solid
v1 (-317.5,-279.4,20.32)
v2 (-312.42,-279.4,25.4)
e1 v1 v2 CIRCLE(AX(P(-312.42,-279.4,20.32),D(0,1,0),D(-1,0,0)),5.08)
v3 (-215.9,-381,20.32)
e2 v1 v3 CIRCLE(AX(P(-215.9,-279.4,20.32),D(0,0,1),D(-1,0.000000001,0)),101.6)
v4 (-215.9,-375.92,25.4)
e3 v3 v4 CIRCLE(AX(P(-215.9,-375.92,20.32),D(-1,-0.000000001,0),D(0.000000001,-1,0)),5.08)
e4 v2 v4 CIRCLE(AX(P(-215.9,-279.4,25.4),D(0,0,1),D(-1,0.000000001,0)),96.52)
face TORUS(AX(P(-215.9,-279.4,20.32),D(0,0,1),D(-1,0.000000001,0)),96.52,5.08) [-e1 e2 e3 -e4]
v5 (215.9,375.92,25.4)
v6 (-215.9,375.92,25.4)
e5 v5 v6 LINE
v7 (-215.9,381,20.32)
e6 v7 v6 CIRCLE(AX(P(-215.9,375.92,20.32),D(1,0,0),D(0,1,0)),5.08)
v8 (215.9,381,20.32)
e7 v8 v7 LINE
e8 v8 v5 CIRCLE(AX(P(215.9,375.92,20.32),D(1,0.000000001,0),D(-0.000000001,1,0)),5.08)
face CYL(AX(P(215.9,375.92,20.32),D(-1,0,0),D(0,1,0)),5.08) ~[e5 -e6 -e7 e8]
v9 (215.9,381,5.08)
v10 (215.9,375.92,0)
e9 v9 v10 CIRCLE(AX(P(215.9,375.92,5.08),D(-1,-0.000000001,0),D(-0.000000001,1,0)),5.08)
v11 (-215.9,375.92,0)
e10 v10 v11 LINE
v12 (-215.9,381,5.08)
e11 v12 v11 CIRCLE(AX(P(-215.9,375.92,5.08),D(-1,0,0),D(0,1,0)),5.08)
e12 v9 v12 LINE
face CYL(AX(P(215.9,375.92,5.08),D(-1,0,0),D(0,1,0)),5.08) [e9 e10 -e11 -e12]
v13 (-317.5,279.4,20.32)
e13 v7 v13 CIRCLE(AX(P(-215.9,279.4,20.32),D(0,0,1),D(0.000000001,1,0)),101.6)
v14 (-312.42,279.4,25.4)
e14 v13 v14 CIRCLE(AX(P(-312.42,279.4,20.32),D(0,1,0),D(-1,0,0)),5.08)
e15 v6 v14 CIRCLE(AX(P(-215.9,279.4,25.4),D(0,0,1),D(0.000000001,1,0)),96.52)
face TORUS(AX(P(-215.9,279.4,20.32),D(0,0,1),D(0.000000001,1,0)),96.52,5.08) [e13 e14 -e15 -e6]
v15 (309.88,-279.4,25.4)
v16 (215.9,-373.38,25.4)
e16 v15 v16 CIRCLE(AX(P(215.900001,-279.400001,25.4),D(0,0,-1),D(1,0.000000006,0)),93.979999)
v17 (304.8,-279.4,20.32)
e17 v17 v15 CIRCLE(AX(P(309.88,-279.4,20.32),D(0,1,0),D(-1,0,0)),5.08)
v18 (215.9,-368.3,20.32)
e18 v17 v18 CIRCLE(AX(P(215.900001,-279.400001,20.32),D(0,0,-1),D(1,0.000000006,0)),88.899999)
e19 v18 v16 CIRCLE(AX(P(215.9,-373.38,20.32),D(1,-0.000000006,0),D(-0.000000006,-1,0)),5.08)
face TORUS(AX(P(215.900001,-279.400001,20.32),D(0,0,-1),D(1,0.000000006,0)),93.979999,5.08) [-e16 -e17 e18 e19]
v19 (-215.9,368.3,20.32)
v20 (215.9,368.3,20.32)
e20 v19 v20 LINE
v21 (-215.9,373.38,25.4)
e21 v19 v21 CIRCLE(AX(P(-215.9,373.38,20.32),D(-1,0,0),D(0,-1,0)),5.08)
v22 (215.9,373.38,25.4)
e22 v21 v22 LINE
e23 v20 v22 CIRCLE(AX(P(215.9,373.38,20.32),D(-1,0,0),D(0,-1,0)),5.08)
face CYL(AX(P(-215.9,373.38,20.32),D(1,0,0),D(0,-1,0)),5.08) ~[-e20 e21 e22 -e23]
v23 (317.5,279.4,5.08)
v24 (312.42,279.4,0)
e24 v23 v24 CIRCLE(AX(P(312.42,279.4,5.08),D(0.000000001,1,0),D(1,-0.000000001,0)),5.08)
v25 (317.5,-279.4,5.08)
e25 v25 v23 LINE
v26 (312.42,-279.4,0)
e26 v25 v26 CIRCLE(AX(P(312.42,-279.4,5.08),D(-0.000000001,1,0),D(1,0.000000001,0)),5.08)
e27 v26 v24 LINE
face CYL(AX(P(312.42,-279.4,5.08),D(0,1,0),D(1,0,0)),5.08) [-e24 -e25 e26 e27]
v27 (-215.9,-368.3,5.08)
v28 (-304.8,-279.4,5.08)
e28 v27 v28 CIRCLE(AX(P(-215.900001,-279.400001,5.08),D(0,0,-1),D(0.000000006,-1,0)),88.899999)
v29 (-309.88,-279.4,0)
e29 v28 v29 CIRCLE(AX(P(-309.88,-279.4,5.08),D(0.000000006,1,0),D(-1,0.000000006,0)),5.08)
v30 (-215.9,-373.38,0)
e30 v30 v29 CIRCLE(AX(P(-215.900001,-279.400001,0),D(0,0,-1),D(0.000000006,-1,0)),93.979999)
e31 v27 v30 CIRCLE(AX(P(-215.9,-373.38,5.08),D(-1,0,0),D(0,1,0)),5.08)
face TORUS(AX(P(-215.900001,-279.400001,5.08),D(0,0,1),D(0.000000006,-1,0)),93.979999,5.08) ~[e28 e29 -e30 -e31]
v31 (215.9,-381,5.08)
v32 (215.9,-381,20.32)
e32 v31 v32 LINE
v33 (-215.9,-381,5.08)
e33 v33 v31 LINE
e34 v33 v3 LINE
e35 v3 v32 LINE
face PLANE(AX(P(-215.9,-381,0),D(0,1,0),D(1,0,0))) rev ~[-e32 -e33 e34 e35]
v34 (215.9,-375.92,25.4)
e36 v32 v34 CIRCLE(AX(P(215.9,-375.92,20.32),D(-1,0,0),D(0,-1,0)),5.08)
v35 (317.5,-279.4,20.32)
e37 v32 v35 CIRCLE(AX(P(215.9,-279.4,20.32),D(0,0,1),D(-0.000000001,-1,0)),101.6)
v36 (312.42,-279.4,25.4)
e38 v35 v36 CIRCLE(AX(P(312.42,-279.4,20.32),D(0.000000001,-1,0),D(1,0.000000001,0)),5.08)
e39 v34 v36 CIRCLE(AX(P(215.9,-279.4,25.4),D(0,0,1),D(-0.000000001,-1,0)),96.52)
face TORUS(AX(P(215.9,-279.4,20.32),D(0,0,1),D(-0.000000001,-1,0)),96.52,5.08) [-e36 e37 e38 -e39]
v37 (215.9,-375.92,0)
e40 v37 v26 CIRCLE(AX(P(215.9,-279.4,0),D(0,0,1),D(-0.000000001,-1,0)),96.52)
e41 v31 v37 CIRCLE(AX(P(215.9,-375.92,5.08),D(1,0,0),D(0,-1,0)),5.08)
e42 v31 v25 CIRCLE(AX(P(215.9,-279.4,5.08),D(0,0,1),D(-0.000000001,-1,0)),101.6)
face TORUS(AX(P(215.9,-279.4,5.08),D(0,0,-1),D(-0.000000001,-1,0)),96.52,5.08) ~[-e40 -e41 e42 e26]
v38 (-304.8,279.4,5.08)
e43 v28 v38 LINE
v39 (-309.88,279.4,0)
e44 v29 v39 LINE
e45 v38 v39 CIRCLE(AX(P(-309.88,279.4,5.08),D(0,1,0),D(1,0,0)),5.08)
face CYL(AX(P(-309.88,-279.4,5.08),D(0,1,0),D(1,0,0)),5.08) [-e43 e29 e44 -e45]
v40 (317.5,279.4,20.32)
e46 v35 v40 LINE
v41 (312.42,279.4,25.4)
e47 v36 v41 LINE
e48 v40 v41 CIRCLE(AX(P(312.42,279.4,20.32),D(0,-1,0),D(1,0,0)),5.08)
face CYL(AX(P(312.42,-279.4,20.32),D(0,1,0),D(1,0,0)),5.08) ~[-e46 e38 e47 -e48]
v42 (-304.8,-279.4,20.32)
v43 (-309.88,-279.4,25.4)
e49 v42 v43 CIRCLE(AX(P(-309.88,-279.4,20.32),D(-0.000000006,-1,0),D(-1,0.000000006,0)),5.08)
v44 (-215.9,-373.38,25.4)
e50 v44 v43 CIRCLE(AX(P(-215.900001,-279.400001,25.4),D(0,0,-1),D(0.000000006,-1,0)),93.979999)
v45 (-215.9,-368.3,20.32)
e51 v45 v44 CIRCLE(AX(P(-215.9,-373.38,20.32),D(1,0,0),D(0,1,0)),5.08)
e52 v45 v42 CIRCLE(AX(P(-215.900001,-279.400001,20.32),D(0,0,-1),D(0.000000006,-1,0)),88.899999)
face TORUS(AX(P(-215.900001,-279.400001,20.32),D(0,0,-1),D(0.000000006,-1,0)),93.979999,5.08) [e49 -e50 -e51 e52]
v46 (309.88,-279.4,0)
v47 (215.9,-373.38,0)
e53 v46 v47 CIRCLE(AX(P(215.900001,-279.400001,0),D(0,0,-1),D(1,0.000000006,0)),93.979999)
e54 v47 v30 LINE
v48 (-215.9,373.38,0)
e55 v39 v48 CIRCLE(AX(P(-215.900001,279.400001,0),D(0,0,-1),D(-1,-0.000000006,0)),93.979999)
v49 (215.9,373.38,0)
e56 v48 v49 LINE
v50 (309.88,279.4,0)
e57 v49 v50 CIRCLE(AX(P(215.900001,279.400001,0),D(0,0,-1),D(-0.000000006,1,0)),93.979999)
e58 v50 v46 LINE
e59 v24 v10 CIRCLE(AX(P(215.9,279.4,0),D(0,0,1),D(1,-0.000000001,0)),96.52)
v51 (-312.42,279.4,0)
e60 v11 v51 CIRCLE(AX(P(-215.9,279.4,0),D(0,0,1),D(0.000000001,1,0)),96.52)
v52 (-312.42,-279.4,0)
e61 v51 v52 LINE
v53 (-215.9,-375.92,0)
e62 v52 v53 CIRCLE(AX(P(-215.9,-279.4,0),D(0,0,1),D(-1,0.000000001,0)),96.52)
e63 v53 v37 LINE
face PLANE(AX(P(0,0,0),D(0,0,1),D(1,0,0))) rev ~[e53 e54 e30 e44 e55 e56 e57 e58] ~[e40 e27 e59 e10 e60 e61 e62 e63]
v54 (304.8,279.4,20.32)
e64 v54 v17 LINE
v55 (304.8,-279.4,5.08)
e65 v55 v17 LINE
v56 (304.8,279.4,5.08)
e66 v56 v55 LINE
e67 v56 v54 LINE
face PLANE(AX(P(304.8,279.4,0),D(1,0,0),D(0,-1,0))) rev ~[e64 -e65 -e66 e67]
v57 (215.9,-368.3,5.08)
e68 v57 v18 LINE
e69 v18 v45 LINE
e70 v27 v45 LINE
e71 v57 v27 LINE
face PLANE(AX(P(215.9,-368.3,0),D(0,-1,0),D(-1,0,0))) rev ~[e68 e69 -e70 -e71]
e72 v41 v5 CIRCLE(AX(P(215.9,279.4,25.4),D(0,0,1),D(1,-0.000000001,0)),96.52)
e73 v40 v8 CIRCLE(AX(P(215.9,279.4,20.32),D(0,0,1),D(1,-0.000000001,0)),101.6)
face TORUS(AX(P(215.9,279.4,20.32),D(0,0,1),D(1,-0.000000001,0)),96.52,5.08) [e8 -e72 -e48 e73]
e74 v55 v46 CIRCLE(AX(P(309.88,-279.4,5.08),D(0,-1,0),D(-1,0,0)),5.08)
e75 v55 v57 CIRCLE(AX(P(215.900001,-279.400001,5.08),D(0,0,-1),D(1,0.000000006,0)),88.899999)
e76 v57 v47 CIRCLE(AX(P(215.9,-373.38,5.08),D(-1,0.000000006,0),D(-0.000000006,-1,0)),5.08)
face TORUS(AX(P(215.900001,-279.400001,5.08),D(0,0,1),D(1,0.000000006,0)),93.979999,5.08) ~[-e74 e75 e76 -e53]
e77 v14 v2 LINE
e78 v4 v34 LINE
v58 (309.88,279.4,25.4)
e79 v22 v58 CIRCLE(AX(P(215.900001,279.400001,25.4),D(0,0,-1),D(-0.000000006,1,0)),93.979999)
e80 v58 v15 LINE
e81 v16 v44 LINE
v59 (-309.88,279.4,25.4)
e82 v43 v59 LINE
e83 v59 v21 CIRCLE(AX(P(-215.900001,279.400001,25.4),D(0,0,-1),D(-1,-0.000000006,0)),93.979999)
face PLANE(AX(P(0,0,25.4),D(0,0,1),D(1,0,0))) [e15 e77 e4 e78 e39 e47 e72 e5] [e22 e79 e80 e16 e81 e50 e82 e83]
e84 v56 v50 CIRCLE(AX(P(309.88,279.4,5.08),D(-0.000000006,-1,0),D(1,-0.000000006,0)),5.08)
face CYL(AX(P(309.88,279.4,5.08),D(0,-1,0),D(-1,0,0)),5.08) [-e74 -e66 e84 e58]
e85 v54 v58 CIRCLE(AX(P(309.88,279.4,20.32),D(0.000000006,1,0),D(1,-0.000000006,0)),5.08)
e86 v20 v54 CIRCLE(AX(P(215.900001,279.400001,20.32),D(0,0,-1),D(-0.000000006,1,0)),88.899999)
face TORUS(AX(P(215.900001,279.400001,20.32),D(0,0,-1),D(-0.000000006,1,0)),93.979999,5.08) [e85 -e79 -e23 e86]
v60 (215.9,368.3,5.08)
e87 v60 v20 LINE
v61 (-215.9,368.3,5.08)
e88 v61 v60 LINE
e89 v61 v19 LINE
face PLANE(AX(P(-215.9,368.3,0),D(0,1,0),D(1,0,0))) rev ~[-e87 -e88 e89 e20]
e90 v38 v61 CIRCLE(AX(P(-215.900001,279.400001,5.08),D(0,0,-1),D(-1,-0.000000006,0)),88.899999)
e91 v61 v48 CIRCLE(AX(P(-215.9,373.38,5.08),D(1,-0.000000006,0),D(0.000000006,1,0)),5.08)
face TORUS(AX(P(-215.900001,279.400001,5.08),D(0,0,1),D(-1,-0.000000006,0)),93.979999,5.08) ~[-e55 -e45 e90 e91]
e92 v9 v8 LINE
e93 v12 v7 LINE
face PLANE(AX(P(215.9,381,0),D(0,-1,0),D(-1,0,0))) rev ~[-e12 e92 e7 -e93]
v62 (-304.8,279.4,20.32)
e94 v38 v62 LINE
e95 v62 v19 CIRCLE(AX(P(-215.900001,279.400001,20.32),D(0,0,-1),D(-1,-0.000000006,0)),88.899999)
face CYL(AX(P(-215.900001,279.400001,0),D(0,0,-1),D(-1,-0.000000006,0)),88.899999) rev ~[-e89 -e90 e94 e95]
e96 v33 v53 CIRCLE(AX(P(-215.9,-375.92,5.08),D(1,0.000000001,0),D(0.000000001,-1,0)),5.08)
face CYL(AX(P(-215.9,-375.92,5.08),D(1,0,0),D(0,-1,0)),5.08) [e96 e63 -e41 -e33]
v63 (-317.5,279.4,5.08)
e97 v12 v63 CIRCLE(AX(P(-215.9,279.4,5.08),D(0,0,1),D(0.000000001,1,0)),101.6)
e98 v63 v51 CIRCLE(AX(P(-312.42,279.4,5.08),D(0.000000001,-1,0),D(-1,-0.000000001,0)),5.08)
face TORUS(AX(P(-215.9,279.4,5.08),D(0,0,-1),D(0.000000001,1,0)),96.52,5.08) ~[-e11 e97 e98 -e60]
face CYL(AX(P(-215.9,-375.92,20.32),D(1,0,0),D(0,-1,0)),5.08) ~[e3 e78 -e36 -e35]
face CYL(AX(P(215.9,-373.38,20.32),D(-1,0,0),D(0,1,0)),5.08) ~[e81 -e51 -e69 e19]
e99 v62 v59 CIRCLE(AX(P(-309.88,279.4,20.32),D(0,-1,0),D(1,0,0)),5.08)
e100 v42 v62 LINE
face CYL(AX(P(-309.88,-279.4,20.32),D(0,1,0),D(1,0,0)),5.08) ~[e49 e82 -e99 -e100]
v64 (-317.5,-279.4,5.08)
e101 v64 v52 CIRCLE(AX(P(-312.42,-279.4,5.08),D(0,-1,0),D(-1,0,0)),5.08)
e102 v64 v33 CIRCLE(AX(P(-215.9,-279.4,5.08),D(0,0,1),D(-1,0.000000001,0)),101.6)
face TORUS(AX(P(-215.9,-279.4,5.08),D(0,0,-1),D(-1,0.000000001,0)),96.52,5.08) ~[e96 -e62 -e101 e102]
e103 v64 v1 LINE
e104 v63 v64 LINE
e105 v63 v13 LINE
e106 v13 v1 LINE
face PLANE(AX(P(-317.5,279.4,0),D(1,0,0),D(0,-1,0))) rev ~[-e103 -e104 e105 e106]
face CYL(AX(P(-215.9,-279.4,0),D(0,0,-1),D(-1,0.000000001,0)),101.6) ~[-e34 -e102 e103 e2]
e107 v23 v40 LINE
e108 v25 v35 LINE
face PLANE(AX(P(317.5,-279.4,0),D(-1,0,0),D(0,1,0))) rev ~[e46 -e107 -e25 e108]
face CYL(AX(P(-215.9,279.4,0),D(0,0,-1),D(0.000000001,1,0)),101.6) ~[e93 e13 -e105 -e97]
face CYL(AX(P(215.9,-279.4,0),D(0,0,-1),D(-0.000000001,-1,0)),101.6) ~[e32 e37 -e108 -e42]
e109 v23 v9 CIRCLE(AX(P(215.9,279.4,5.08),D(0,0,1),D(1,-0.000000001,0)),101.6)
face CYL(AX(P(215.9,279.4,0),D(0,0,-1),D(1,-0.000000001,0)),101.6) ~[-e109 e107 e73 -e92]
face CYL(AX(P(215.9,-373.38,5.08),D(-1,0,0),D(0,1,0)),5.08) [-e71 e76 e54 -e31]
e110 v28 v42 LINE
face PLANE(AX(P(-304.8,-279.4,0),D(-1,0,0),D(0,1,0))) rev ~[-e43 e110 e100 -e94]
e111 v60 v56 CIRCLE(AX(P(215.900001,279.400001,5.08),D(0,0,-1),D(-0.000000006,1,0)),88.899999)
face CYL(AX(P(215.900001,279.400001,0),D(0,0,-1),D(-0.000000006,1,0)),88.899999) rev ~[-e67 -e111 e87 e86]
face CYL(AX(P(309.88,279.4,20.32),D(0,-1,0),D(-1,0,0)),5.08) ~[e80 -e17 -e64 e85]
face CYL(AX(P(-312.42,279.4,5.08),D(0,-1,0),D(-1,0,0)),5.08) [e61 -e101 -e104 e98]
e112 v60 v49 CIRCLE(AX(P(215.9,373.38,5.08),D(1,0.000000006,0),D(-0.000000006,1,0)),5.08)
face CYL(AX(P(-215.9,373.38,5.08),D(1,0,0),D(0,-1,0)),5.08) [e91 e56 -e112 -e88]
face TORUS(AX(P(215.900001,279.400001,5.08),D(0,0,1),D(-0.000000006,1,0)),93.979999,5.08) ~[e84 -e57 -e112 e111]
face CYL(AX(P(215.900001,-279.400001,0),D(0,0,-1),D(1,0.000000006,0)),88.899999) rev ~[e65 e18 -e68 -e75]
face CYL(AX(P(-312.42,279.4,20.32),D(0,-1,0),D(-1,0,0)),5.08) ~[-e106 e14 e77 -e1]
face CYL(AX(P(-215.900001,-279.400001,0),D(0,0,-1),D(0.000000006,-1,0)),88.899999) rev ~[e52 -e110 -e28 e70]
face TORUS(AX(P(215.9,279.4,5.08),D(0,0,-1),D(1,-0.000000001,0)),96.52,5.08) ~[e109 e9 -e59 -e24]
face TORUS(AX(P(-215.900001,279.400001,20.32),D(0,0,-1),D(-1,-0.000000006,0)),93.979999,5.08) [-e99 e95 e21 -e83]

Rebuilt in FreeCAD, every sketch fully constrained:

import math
import FreeCAD as App
import Part
import Sketcher
Q = App.Units.Quantity


def edges_at(feature, points):
    """Names of the edges that pass closest to the given points."""
    edges = feature.Shape.Edges
    near = lambda p: min(range(len(edges)), key=lambda i: edges[i].distToShape(Part.Vertex(*p))[0])
    return sorted({f"Edge{near(p) + 1}" for p in points})

doc = App.newDocument("Part")
body = doc.addObject("PartDesign::Body", "Body")

# Sketch on XY plane
sketch1 = body.newObject("Sketcher::SketchObject", "Sketch")
sketch1.AttachmentSupport = (doc.getObject("XY_Plane"), [""])
sketch1.MapMode = "FlatFace"
sketch1.addGeometry([
    Part.ArcOfCircle(Part.Circle(App.Vector(-216, -279, 0), App.Vector(0, 0, 1), 102), math.radians(180), math.radians(270)),  # 0
    Part.LineSegment(App.Vector(-216, -381, 0), App.Vector(216, -381, 0)),  # 1
    Part.ArcOfCircle(Part.Circle(App.Vector(216, -279, 0), App.Vector(0, 0, 1), 102), math.radians(-90), math.radians(0)),  # 2
    Part.LineSegment(App.Vector(318, -279, 0), App.Vector(318, 279, 0)),  # 3
    Part.ArcOfCircle(Part.Circle(App.Vector(216, 279, 0), App.Vector(0, 0, 1), 102), math.radians(0), math.radians(90)),  # 4
    Part.LineSegment(App.Vector(216, 381, 0), App.Vector(-216, 381, 0)),  # 5
    Part.ArcOfCircle(Part.Circle(App.Vector(-216, 279, 0), App.Vector(0, 0, 1), 102), math.radians(90), math.radians(180)),  # 6
    Part.LineSegment(App.Vector(-318, 279, 0), App.Vector(-318, -279, 0)),  # 7
    Part.LineSegment(App.Vector(305, 279, 0), App.Vector(305, -279, 0)),  # 8
    Part.ArcOfCircle(Part.Circle(App.Vector(216, -279, 0), App.Vector(0, 0, 1), 89), math.radians(-90), math.radians(0)),  # 9
    Part.LineSegment(App.Vector(216, -368, 0), App.Vector(-216, -368, 0)),  # 10
    Part.ArcOfCircle(Part.Circle(App.Vector(-216, -279, 0), App.Vector(0, 0, 1), 89), math.radians(180), math.radians(270)),  # 11
    Part.LineSegment(App.Vector(-305, -279, 0), App.Vector(-305, 279, 0)),  # 12
    Part.ArcOfCircle(Part.Circle(App.Vector(-216, 279, 0), App.Vector(0, 0, 1), 89), math.radians(90), math.radians(180)),  # 13
    Part.LineSegment(App.Vector(-216, 368, 0), App.Vector(216, 368, 0)),  # 14
    Part.ArcOfCircle(Part.Circle(App.Vector(216, 279, 0), App.Vector(0, 0, 1), 89), math.radians(0), math.radians(90)),  # 15
], False)
sketch1.addConstraint([
    Sketcher.Constraint("Tangent", 0, 2, 1, 1),
    Sketcher.Constraint("Tangent", 1, 2, 2, 1),
    Sketcher.Constraint("Tangent", 2, 2, 3, 1),
    Sketcher.Constraint("Tangent", 3, 2, 4, 1),
    Sketcher.Constraint("Tangent", 4, 2, 5, 1),
    Sketcher.Constraint("Tangent", 5, 2, 6, 1),
    Sketcher.Constraint("Tangent", 6, 2, 7, 1),
    Sketcher.Constraint("Tangent", 7, 2, 0, 1),
    Sketcher.Constraint("Tangent", 8, 2, 9, 2),
    Sketcher.Constraint("Tangent", 9, 1, 10, 1),
    Sketcher.Constraint("Tangent", 10, 2, 11, 2),
    Sketcher.Constraint("Tangent", 11, 1, 12, 1),
    Sketcher.Constraint("Tangent", 12, 2, 13, 2),
    Sketcher.Constraint("Tangent", 13, 1, 14, 1),
    Sketcher.Constraint("Tangent", 14, 2, 15, 2),
    Sketcher.Constraint("Tangent", 15, 1, 8, 1),
    Sketcher.Constraint("Horizontal", 1),
    Sketcher.Constraint("Vertical", 3),
    Sketcher.Constraint("Horizontal", 5),
    Sketcher.Constraint("Vertical", 7),
    Sketcher.Constraint("Vertical", 8),
    Sketcher.Constraint("Horizontal", 10),
    Sketcher.Constraint("Vertical", 12),
    Sketcher.Constraint("Horizontal", 14),
    Sketcher.Constraint("Coincident", 9, 3, 2, 3),
    Sketcher.Constraint("Coincident", 11, 3, 0, 3),
    Sketcher.Constraint("Coincident", 13, 3, 6, 3),
    Sketcher.Constraint("Equal", 0, 2),
    Sketcher.Constraint("Equal", 2, 4),
    Sketcher.Constraint("Equal", 4, 6),
    Sketcher.Constraint("Equal", 13, 15),
    Sketcher.Constraint("Symmetric", 0, 3, 4, 3, -1, 1),
    Sketcher.Constraint("Radius", 0, Q("4 in")),
    Sketcher.Constraint("Radius", 9, Q("3.5 in")),
    Sketcher.Constraint("DistanceX", 1, 1, 1, 2, Q("17 in")),
    Sketcher.Constraint("DistanceY", 3, 1, 3, 2, Q("22 in")),
])
pad1 = body.newObject("PartDesign::Pad", "Pad")
pad1.Profile = sketch1
pad1.Length = Q("1 in")
doc.recompute()

fillet = body.newObject("PartDesign::Fillet", "Fillet")
fillet.Base = (pad1, edges_at(pad1, [
    (-317.5, 0, 25.4),
    (-287.742, 351.242, 25.4),
    (-287.742, -351.242, 25.4),
    (0, -381, 25.4),
    (0, 381, 25.4),
    (278.762, 342.262, 0),
    (287.742, 351.242, 0),
    (0, 368.3, 25.4),
]))
fillet.Radius = Q("0.2 in")

doc.recompute()
